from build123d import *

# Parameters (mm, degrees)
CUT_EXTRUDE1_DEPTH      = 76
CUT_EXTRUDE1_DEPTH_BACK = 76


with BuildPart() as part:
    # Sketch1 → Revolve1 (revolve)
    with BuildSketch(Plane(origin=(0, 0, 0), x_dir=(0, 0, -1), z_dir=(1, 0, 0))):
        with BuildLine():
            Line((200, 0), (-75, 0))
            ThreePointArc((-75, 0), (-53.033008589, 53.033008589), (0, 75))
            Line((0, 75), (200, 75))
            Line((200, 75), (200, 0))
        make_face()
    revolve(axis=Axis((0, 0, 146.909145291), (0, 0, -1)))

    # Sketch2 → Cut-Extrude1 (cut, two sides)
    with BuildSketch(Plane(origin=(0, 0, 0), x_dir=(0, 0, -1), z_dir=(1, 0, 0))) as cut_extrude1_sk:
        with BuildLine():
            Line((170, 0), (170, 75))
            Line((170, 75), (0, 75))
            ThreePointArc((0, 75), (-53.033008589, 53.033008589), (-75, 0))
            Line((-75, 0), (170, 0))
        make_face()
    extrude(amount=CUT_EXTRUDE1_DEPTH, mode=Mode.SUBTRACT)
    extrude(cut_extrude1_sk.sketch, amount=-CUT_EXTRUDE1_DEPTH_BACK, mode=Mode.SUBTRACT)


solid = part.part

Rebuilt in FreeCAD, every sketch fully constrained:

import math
import FreeCAD as App
import Part
import Sketcher

V = App.Vector

doc = App.newDocument("Part")
body = doc.addObject("PartDesign::Body", "Body")

# Sketch on YZ plane
sketch1 = body.newObject("Sketcher::SketchObject", "Sketch")
sketch1.AttachmentSupport = (doc.getObject("YZ_Plane"), [""])
sketch1.MapMode = "FlatFace"
sketch1.addGeometry(Part.LineSegment(V(0, 75, 0), V(0, -200, 0)), False)
sketch1.addGeometry(Part.LineSegment(V(0, -200, 0), V(75, -200, 0)), False)
sketch1.addGeometry(Part.LineSegment(V(75, -200, 0), V(75, 0, 0)), False)
sketch1.addGeometry(Part.ArcOfCircle(Part.Circle(V(0, 0, 0), V(0, 0, 1), 75), math.radians(0), math.radians(90)), False)
sketch1.addConstraint(Sketcher.Constraint("Coincident", 0, 2, 1, 1))
sketch1.addConstraint(Sketcher.Constraint("Coincident", 1, 2, 2, 1))
sketch1.addConstraint(Sketcher.Constraint("Tangent", 2, 2, 3, 1))
sketch1.addConstraint(Sketcher.Constraint("Coincident", 3, 2, 0, 1))
sketch1.addConstraint(Sketcher.Constraint("Vertical", 0))
sketch1.addConstraint(Sketcher.Constraint("Horizontal", 1))
sketch1.addConstraint(Sketcher.Constraint("Vertical", 2))
sketch1.addConstraint(Sketcher.Constraint("Coincident", 3, 3, -1, 1))
sketch1.addConstraint(Sketcher.Constraint("PointOnObject", 0, 2, -2))
sketch1.addConstraint(Sketcher.Constraint("Radius", 3, 75.0))
sketch1.addConstraint(Sketcher.Constraint("DistanceY", 0, 2, 0, 1, 275.0))
revolution = body.newObject("PartDesign::Revolution", "Revolution")
revolution.Profile = sketch1
revolution.ReferenceAxis = (sketch1, ["V_Axis"])
revolution.Angle = 360

# Sketch on YZ plane
sketch2 = body.newObject("Sketcher::SketchObject", "Sketch001")
sketch2.AttachmentSupport = (doc.getObject("YZ_Plane"), [""])
sketch2.MapMode = "FlatFace"
sketch2.addGeometry(Part.LineSegment(V(0, -170, 0), V(75, -170, 0)), False)
sketch2.addGeometry(Part.LineSegment(V(75, -170, 0), V(75, 0, 0)), False)
sketch2.addGeometry(Part.ArcOfCircle(Part.Circle(V(0, 0, 0), V(0, 0, 1), 75), math.radians(0), math.radians(90)), False)
sketch2.addGeometry(Part.LineSegment(V(0, 75, 0), V(0, -170, 0)), False)
sketch2.addConstraint(Sketcher.Constraint("Coincident", 0, 2, 1, 1))
sketch2.addConstraint(Sketcher.Constraint("Tangent", 1, 2, 2, 1))
sketch2.addConstraint(Sketcher.Constraint("Coincident", 2, 2, 3, 1))
sketch2.addConstraint(Sketcher.Constraint("Coincident", 3, 2, 0, 1))
sketch2.addConstraint(Sketcher.Constraint("Horizontal", 0))
sketch2.addConstraint(Sketcher.Constraint("Vertical", 1))
sketch2.addConstraint(Sketcher.Constraint("Vertical", 3))
sketch2.addConstraint(Sketcher.Constraint("Coincident", 2, 3, -1, 1))
sketch2.addConstraint(Sketcher.Constraint("PointOnObject", 2, 2, -2))
sketch2.addConstraint(Sketcher.Constraint("Radius", 2, 75.0))
sketch2.addConstraint(Sketcher.Constraint("DistanceY", 1, 1, 1, 2, 170.0))
pocket1 = body.newObject("PartDesign::Pocket", "Pocket")
pocket1.Profile = sketch2
pocket1.Type = "ThroughAll"
pocket1.Midplane = True

doc.recompute()
